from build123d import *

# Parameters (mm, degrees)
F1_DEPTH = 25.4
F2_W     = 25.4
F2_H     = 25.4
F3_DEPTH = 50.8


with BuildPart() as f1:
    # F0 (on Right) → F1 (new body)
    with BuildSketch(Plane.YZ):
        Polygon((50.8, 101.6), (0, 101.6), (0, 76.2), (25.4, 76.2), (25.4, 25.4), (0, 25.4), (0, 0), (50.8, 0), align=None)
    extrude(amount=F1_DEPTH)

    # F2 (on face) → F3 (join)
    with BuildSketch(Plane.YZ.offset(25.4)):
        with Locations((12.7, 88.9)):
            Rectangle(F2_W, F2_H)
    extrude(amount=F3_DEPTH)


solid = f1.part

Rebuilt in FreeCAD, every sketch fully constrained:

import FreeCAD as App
import Part
import Sketcher
from FreeCAD import Vector
Q = App.Units.Quantity

doc = App.newDocument("Part")
body = doc.addObject("PartDesign::Body", "Body")

# Sketch on YZ plane
sketch1 = body.newObject("Sketcher::SketchObject", "Sketch")
sketch1.AttachmentSupport = (doc.getObject("YZ_Plane"), [""])
sketch1.MapMode = "FlatFace"
sketch1.addGeometry([
    Part.LineSegment(Vector(50.8, 101.6, 0), Vector(0, 101.6, 0)),  # 0
    Part.LineSegment(Vector(0, 101.6, 0), Vector(0, 76.2, 0)),  # 1
    Part.LineSegment(Vector(0, 76.2, 0), Vector(25.4, 76.2, 0)),  # 2
    Part.LineSegment(Vector(25.4, 76.2, 0), Vector(25.4, 25.4, 0)),  # 3
    Part.LineSegment(Vector(25.4, 25.4, 0), Vector(0, 25.4, 0)),  # 4
    Part.LineSegment(Vector(0, 25.4, 0), Vector(0, 0, 0)),  # 5
    Part.LineSegment(Vector(0, 0, 0), Vector(50.8, 0, 0)),  # 6
    Part.LineSegment(Vector(50.8, 0, 0), Vector(50.8, 101.6, 0)),  # 7
], False)
sketch1.addConstraint([
    Sketcher.Constraint("Coincident", 0, 2, 1, 1),
    Sketcher.Constraint("Coincident", 1, 2, 2, 1),
    Sketcher.Constraint("Coincident", 2, 2, 3, 1),
    Sketcher.Constraint("Coincident", 3, 2, 4, 1),
    Sketcher.Constraint("Coincident", 4, 2, 5, 1),
    Sketcher.Constraint("Coincident", 5, 2, 6, 1),
    Sketcher.Constraint("Coincident", 6, 2, 7, 1),
    Sketcher.Constraint("Coincident", 7, 2, 0, 1),
    Sketcher.Constraint("Horizontal", 0),
    Sketcher.Constraint("Vertical", 1),
    Sketcher.Constraint("Horizontal", 2),
    Sketcher.Constraint("Vertical", 3),
    Sketcher.Constraint("Horizontal", 4),
    Sketcher.Constraint("Vertical", 5),
    Sketcher.Constraint("Horizontal", 6),
    Sketcher.Constraint("Vertical", 7),
    Sketcher.Constraint("Coincident", 5, 2, -1, 1),
    Sketcher.Constraint("PointOnObject", 0, 2, -2),
    Sketcher.Constraint("Equal", 4, 1),
    Sketcher.Constraint("Equal", 6, 3),
    Sketcher.Constraint("Equal", 1, 5),
    Sketcher.Constraint("DistanceX", 0, 2, 0, 1, Q("2 in")),
    Sketcher.Constraint("DistanceX", 2, 1, 2, 2, Q("1 in")),
])
pad1 = body.newObject("PartDesign::Pad", "Pad")
pad1.Profile = sketch1
pad1.Length = Q("1 in")

# Sketch on YZ plane
sketch2 = body.newObject("Sketcher::SketchObject", "Sketch001")
sketch2.AttachmentSupport = (doc.getObject("YZ_Plane"), [""])
sketch2.MapMode = "FlatFace"
sketch2.AttachmentOffset = App.Placement(Vector(0, 0, 1 * 25.4), App.Rotation())
sketch2.addGeometry([
    Part.LineSegment(Vector(0, 101.6, 0), Vector(0, 76.2, 0)),
    Part.LineSegment(Vector(0, 76.2, 0), Vector(25.4, 76.2, 0)),
    Part.LineSegment(Vector(25.4, 76.2, 0), Vector(25.4, 101.6, 0)),
    Part.LineSegment(Vector(25.4, 101.6, 0), Vector(0, 101.6, 0)),
], False)
sketch2.addConstraint([
    Sketcher.Constraint("Coincident", 0, 2, 1, 1),
    Sketcher.Constraint("Coincident", 1, 2, 2, 1),
    Sketcher.Constraint("Coincident", 2, 2, 3, 1),
    Sketcher.Constraint("Coincident", 3, 2, 0, 1),
    Sketcher.Constraint("Vertical", 0),
    Sketcher.Constraint("Horizontal", 1),
    Sketcher.Constraint("Vertical", 2),
    Sketcher.Constraint("Horizontal", 3),
    Sketcher.Constraint("PointOnObject", 0, 2, -2),
    Sketcher.Constraint("Equal", 3, 0),
    Sketcher.Constraint("DistanceX", 1, 1, 1, 2, Q("1 in")),
    Sketcher.Constraint("DistanceY", -1, 1, 0, 2, Q("3 in")),
])
pad2 = body.newObject("PartDesign::Pad", "Pad001")
pad2.Profile = sketch2
pad2.Length = Q("2 in")

doc.recompute()
